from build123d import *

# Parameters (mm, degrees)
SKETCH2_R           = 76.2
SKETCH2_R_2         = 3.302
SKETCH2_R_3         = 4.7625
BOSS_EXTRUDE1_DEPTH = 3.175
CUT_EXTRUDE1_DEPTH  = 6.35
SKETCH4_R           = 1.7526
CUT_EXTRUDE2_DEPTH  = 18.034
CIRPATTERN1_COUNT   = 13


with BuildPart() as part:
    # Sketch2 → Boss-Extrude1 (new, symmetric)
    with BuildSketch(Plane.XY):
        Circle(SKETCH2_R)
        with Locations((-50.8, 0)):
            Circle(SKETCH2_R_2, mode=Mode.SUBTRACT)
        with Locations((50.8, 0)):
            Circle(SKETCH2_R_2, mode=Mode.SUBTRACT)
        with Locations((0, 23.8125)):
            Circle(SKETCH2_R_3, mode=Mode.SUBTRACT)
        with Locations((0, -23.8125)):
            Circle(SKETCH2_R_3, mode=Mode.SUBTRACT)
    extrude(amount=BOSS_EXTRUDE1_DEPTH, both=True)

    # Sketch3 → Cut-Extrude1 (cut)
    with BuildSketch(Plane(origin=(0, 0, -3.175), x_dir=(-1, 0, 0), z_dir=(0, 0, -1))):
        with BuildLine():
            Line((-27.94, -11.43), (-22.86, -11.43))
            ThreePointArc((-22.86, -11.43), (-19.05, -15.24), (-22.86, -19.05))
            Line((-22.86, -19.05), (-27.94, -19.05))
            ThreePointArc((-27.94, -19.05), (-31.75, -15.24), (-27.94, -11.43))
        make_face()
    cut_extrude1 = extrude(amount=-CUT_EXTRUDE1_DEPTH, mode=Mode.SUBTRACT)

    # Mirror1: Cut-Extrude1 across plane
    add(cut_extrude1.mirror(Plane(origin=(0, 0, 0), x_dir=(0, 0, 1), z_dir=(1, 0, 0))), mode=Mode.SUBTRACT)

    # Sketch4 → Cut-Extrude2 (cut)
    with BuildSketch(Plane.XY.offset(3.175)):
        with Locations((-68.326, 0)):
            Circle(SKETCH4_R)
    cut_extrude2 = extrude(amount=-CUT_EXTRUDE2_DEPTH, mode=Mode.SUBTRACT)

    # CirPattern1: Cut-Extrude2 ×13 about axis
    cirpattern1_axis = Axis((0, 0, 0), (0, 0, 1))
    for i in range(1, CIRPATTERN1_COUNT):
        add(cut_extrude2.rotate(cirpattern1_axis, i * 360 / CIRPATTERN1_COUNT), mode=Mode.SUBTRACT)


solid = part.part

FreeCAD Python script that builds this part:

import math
import FreeCAD as App
import Part
import Sketcher
from FreeCAD import Vector
Q = App.Units.Quantity

doc = App.newDocument("Part")
params = doc.addObject("Spreadsheet::Sheet", "Params")
for row, (alias, value) in enumerate([
    ("sketch1_diameter", "6 in"),
    ("sketch1_diameter2", "0.26 in"),
    ("sketch1_diameter3", "0.375 in"),
    ("pad1_length", "0.25 in"),
    ("sketch2_radius", "0.15 in"),
    ("sketch2_width", "0.2 in"),
    ("pocket1_length", "0.25 in"),
    ("sketch3_diameter", "0.138 in"),
    ("pocket2_length", "0.71 in"),
], start=1):
    params.set(f"A{row}", alias)
    params.set(f"B{row}", "=" + value)
    params.setAlias(f"B{row}", alias)

body = doc.addObject("PartDesign::Body", "Body")

sketch1 = body.newObject("Sketcher::SketchObject", "Sketch")
sketch1.AttachmentSupport = (doc.getObject("XY_Plane"), [""])
sketch1.MapMode = "FlatFace"
sketch1.addGeometry([
    Part.Circle(Vector(0, 0, 0), Vector(0, 0, 1), 76.2),
    Part.Circle(Vector(0, -23.8, 0), Vector(0, 0, 1), 4.8),
    Part.Circle(Vector(-50.8, 0, 0), Vector(0, 0, 1), 3.3),
    Part.Circle(Vector(50.8, 0, 0), Vector(0, 0, 1), 3.3),
    Part.Circle(Vector(0, 23.8, 0), Vector(0, 0, 1), 4.8),
], False)
sketch1.addConstraint([
    Sketcher.Constraint("Coincident", 0, 3, -1, 1),
    Sketcher.Constraint("Equal", 2, 3),
    Sketcher.Constraint("Equal", 1, 4),
    Sketcher.Constraint("Symmetric", 2, 3, 3, 3, -1, 1),
    Sketcher.Constraint("Symmetric", 1, 3, 4, 3, -1, 1),
    Sketcher.Constraint("PointOnObject", 1, 3, -2),
    Sketcher.Constraint("PointOnObject", 2, 3, -1),
    Sketcher.Constraint("Diameter", 0, Q("6 in")),
    Sketcher.Constraint("Diameter", 2, Q("0.26 in")),
    Sketcher.Constraint("Diameter", 1, Q("0.375 in")),
    Sketcher.Constraint("DistanceX", 2, 3, -1, 1, Q("2 in")),
    Sketcher.Constraint("DistanceY", 1, 3, -1, 1, Q("0.9375 in")),
])
sketch1.setExpression("Constraints[7]", "Params.sketch1_diameter")
sketch1.setExpression("Constraints[8]", "Params.sketch1_diameter2")
sketch1.setExpression("Constraints[9]", "Params.sketch1_diameter3")
pad1 = body.newObject("PartDesign::Pad", "Pad")
pad1.Profile = sketch1
pad1.setExpression("Length", "Params.pad1_length")
pad1.Midplane = True

sketch2 = body.newObject("Sketcher::SketchObject", "Sketch001")
sketch2.AttachmentSupport = (doc.getObject("XY_Plane"), [""])
sketch2.MapMode = "FlatFace"
sketch2.AttachmentOffset = App.Placement(Vector(0, 0, -0.125 * 25.4), App.Rotation())
sketch2.addGeometry([
    Part.LineSegment(Vector(22.9, -11.4, 0), Vector(27.9, -11.4, 0)),
    Part.ArcOfCircle(Part.Circle(Vector(27.9, -15.2, 0), Vector(0, 0, 1), 3.8), math.radians(-90), math.radians(90)),
    Part.LineSegment(Vector(27.9, -19.1, 0), Vector(22.9, -19.1, 0)),
    Part.ArcOfCircle(Part.Circle(Vector(22.9, -15.2, 0), Vector(0, 0, 1), 3.8), math.radians(90), math.radians(270)),
], False)
sketch2.addConstraint([
    Sketcher.Constraint("Tangent", 0, 2, 1, 2),
    Sketcher.Constraint("Tangent", 1, 1, 2, 1),
    Sketcher.Constraint("Tangent", 2, 2, 3, 2),
    Sketcher.Constraint("Tangent", 3, 1, 0, 1),
    Sketcher.Constraint("Horizontal", 0),
    Sketcher.Constraint("Horizontal", 2),
    Sketcher.Constraint("Radius", 1, Q("0.15 in")),
    Sketcher.Constraint("DistanceX", 0, 1, 0, 2, Q("0.2 in")),
    Sketcher.Constraint("DistanceX", -1, 1, 1, 3, Q("1.1 in")),
    Sketcher.Constraint("DistanceY", 1, 3, -1, 1, Q("0.6 in")),
])
sketch2.setExpression("Constraints[6]", "Params.sketch2_radius")
sketch2.setExpression("Constraints[7]", "Params.sketch2_width")
pocket1 = body.newObject("PartDesign::Pocket", "Pocket")
pocket1.Profile = sketch2
pocket1.setExpression("Length", "Params.pocket1_length")
pocket1.Reversed = True
doc.recompute()

mirrored = body.newObject("PartDesign::Mirrored", "Mirrored")
mirrored.Originals = [pocket1]
mirrored.MirrorPlane = (doc.getObject("YZ_Plane"), [""])
body.Tip = mirrored

sketch3 = body.newObject("Sketcher::SketchObject", "Sketch002")
sketch3.AttachmentSupport = (doc.getObject("XY_Plane"), [""])
sketch3.MapMode = "FlatFace"
sketch3.AttachmentOffset = App.Placement(Vector(0, 0, 0.125 * 25.4), App.Rotation())
sketch3.addGeometry(Part.Circle(Vector(-68.3, 0, 0), Vector(0, 0, 1), 1.8), False)
sketch3.addConstraint([
    Sketcher.Constraint("PointOnObject", 0, 3, -1),
    Sketcher.Constraint("Diameter", 0, Q("0.138 in")),
    Sketcher.Constraint("DistanceX", 0, 3, -1, 1, Q("2.69 in")),
])
sketch3.setExpression("Constraints[1]", "Params.sketch3_diameter")
pocket2 = body.newObject("PartDesign::Pocket", "Pocket001")
pocket2.Profile = sketch3
pocket2.setExpression("Length", "Params.pocket2_length")
doc.recompute()

polarpattern = body.newObject("PartDesign::PolarPattern", "PolarPattern")
polarpattern.Originals = [pocket2]
polarpattern.Axis = (doc.getObject("Z_Axis"), [""])
polarpattern.Angle = 360
polarpattern.Occurrences = 13
body.Tip = polarpattern

doc.recompute()
